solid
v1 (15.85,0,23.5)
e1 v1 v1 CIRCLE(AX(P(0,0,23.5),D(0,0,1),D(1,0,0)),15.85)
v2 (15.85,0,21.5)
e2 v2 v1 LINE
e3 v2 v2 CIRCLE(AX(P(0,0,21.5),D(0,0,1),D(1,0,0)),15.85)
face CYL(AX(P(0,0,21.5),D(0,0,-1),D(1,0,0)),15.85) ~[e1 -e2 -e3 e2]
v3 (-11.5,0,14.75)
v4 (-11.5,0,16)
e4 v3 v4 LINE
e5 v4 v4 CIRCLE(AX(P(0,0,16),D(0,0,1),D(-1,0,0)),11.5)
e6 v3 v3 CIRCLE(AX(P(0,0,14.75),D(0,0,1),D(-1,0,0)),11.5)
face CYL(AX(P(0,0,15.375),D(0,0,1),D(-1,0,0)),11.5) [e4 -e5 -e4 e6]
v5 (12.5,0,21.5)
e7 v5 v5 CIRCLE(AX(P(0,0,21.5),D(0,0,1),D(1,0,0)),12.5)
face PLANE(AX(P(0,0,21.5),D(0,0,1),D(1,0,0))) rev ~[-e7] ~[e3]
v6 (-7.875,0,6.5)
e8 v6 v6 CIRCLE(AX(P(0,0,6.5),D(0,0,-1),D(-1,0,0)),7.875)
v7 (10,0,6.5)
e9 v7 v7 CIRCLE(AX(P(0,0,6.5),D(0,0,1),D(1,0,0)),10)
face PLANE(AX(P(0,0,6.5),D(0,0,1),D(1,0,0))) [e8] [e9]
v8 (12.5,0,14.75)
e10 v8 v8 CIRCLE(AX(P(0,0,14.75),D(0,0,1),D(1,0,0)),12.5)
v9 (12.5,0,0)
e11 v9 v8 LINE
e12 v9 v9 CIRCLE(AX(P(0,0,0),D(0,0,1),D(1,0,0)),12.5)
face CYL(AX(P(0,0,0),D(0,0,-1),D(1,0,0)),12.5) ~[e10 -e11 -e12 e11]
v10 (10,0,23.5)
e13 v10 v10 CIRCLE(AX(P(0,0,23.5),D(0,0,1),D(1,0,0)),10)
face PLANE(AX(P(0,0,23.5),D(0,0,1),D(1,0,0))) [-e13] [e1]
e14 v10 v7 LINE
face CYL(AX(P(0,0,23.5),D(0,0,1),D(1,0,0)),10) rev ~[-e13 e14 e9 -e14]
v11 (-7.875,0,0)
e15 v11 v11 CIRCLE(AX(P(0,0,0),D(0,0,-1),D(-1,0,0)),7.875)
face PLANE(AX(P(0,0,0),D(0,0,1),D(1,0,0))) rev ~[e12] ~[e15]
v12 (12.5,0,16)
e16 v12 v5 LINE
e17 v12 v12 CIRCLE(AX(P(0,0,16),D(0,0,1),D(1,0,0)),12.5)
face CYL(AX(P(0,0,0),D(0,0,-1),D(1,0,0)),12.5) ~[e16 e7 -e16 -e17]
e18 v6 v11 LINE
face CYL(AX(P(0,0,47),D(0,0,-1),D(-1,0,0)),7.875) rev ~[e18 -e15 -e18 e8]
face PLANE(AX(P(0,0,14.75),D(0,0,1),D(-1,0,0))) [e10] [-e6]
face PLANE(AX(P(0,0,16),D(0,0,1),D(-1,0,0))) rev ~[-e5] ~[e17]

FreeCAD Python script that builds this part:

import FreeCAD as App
import Part
import Sketcher

V = App.Vector
Q = App.Units.Quantity

doc = App.newDocument("Part")
body = doc.addObject("PartDesign::Body", "Body")

# Sketch on XY plane
sketch1 = body.newObject("Sketcher::SketchObject", "Sketch")
sketch1.AttachmentSupport = (doc.getObject("XY_Plane"), [""])
sketch1.MapMode = "FlatFace"
sketch1.addGeometry(Part.Circle(V(0, 0, 0), V(0, 0, 1), 12), False)
sketch1.addConstraint(Sketcher.Constraint("Coincident", 0, 3, -1, 1))
sketch1.addConstraint(Sketcher.Constraint("Diameter", 0, Q("25 mm")))
pad1 = body.newObject("PartDesign::Pad", "Pad")
pad1.Profile = sketch1
pad1.Length = 21.5

# Sketch on XY plane
sketch2 = body.newObject("Sketcher::SketchObject", "Sketch001")
sketch2.AttachmentSupport = (doc.getObject("XY_Plane"), [""])
sketch2.MapMode = "FlatFace"
sketch2.AttachmentOffset = App.Placement(V(0, 0, 21.5), App.Rotation())
sketch2.addGeometry(Part.Circle(V(0, 0, 0), V(0, 0, 1), 16), False)
sketch2.addConstraint(Sketcher.Constraint("Coincident", 0, 3, -1, 1))
sketch2.addConstraint(Sketcher.Constraint("Diameter", 0, Q("31.7 mm")))
pad2 = body.newObject("PartDesign::Pad", "Pad001")
pad2.Profile = sketch2
pad2.Length = 2

# Sketch on XY plane
sketch3 = body.newObject("Sketcher::SketchObject", "Sketch002")
sketch3.AttachmentSupport = (doc.getObject("XY_Plane"), [""])
sketch3.MapMode = "FlatFace"
sketch3.AttachmentOffset = App.Placement(V(0, 0, 23.5), App.Rotation())
sketch3.addGeometry(Part.Circle(V(0, 0, 0), V(0, 0, 1), 8), False)
sketch3.addConstraint(Sketcher.Constraint("Coincident", 0, 3, -1, 1))
sketch3.addConstraint(Sketcher.Constraint("Diameter", 0, Q("15.75 mm")))
doc.recompute()
hole = body.newObject("PartDesign::Hole", "Hole")
hole.Profile = sketch3
hole.ThreadType = "None"
hole.Diameter = 15.75
hole.DepthType = "Dimension"
hole.Depth = 23.5
hole.DrillPoint = "Angled"
hole.DrillPointAngle = 118

# Sketch on XY plane
sketch4 = body.newObject("Sketcher::SketchObject", "Sketch003")
sketch4.AttachmentSupport = (doc.getObject("XY_Plane"), [""])
sketch4.MapMode = "FlatFace"
sketch4.AttachmentOffset = App.Placement(V(0, 0, 23.5), App.Rotation())
sketch4.addGeometry(Part.Circle(V(0, 0, 0), V(0, 0, 1), 10), False)
sketch4.addConstraint(Sketcher.Constraint("Coincident", 0, 3, -1, 1))
sketch4.addConstraint(Sketcher.Constraint("Diameter", 0, Q("20 mm")))
pocket1 = body.newObject("PartDesign::Pocket", "Pocket")
pocket1.Profile = sketch4
pocket1.Length = 17

# Sketch on XZ plane
sketch5 = body.newObject("Sketcher::SketchObject", "Sketch004")
sketch5.AttachmentSupport = (doc.getObject("XZ_Plane"), [""])
sketch5.MapMode = "FlatFace"
sketch5.addGeometry(Part.LineSegment(V(-12.5, 16, 0), V(-12.5, 14.8, 0)), False)
sketch5.addGeometry(Part.LineSegment(V(-12.5, 14.8, 0), V(-11.5, 14.8, 0)), False)
sketch5.addGeometry(Part.LineSegment(V(-11.5, 14.8, 0), V(-11.5, 16, 0)), False)
sketch5.addGeometry(Part.LineSegment(V(-11.5, 16, 0), V(-12.5, 16, 0)), False)
sketch5.addConstraint(Sketcher.Constraint("Coincident", 0, 2, 1, 1))
sketch5.addConstraint(Sketcher.Constraint("Coincident", 1, 2, 2, 1))
sketch5.addConstraint(Sketcher.Constraint("Coincident", 2, 2, 3, 1))
sketch5.addConstraint(Sketcher.Constraint("Coincident", 3, 2, 0, 1))
sketch5.addConstraint(Sketcher.Constraint("Vertical", 0))
sketch5.addConstraint(Sketcher.Constraint("Horizontal", 1))
sketch5.addConstraint(Sketcher.Constraint("Vertical", 2))
sketch5.addConstraint(Sketcher.Constraint("Horizontal", 3))
sketch5.addConstraint(Sketcher.Constraint("DistanceX", 1, 1, 1, 2, Q("1 mm")))
sketch5.addConstraint(Sketcher.Constraint("DistanceY", -1, 1, 2, 2, Q("16 mm")))
sketch5.addConstraint(Sketcher.Constraint("DistanceY", 0, 2, 0, 1, Q("1.25 mm")))
sketch5.addConstraint(Sketcher.Constraint("DistanceX", 0, 2, -1, 1, Q("12.5 mm")))
groove = body.newObject("PartDesign::Groove", "Groove")
groove.Profile = sketch5
groove.ReferenceAxis = (sketch5, ["V_Axis"])
groove.Angle = 360

doc.recompute()
